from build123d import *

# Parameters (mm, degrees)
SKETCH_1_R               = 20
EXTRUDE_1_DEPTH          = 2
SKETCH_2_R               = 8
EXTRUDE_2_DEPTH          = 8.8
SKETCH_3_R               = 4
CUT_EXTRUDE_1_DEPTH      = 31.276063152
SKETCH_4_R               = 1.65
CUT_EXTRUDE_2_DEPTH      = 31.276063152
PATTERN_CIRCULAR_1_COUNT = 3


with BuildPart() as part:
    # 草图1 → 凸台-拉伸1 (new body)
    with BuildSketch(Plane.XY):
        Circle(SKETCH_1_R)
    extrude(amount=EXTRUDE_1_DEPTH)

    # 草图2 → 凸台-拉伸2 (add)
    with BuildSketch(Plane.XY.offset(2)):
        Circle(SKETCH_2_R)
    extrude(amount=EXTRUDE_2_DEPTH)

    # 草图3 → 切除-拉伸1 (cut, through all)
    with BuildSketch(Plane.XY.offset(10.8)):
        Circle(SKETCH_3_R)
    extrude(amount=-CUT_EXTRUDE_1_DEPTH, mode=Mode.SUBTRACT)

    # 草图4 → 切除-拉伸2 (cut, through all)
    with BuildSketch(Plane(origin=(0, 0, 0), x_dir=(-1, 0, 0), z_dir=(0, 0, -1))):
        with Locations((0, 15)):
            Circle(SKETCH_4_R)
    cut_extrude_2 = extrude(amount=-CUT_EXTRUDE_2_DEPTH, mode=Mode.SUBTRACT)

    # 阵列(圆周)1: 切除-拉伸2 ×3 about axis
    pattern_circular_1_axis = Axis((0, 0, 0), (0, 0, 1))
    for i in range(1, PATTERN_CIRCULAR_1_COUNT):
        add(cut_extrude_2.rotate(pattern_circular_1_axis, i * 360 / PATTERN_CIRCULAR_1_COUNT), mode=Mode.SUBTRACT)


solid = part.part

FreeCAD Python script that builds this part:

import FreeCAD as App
import Part
import Sketcher

doc = App.newDocument("Part")
body = doc.addObject("PartDesign::Body", "Body")

sketch1 = doc.addObject("Sketcher::SketchObject", "Sketch")
body.addObject(sketch1)
sketch1.AttachmentSupport = (doc.XY_Plane, [""])
sketch1.MapMode = "FlatFace"
sketch1.addGeometry(Part.Circle(App.Vector(0, 0, 0), App.Vector(0, 0, 1), 20), False)
sketch1.addConstraint([
    Sketcher.Constraint("Coincident", 0, 3, -1, 1),
    Sketcher.Constraint("Diameter", 0, 40.0),
])
pad1 = doc.addObject("PartDesign::Pad", "Pad")
body.addObject(pad1)
pad1.Profile = sketch1
pad1.Length = 2

sketch2 = doc.addObject("Sketcher::SketchObject", "Sketch001")
body.addObject(sketch2)
sketch2.AttachmentSupport = (doc.XY_Plane, [""])
sketch2.MapMode = "FlatFace"
sketch2.AttachmentOffset = App.Placement(App.Vector(0, 0, 2), App.Rotation())
sketch2.addGeometry(Part.Circle(App.Vector(0, 0, 0), App.Vector(0, 0, 1), 8), False)
sketch2.addConstraint([
    Sketcher.Constraint("Coincident", 0, 3, -1, 1),
    Sketcher.Constraint("Diameter", 0, 16.0),
])
pad2 = doc.addObject("PartDesign::Pad", "Pad001")
body.addObject(pad2)
pad2.Profile = sketch2
pad2.Length = 8.8

sketch3 = doc.addObject("Sketcher::SketchObject", "Sketch002")
body.addObject(sketch3)
sketch3.AttachmentSupport = (doc.XY_Plane, [""])
sketch3.MapMode = "FlatFace"
sketch3.AttachmentOffset = App.Placement(App.Vector(0, 0, 10.8), App.Rotation())
sketch3.addGeometry(Part.Circle(App.Vector(0, 0, 0), App.Vector(0, 0, 1), 4), False)
sketch3.addConstraint([
    Sketcher.Constraint("Coincident", 0, 3, -1, 1),
    Sketcher.Constraint("Diameter", 0, 8.0),
])
pocket1 = doc.addObject("PartDesign::Pocket", "Pocket")
body.addObject(pocket1)
pocket1.Profile = sketch3
pocket1.Type = "ThroughAll"

sketch4 = doc.addObject("Sketcher::SketchObject", "Sketch003")
body.addObject(sketch4)
sketch4.AttachmentSupport = (doc.XY_Plane, [""])
sketch4.MapMode = "FlatFace"
sketch4.addGeometry(Part.Circle(App.Vector(0, 15, 0), App.Vector(0, 0, 1), 1.6), False)
sketch4.addConstraint([
    Sketcher.Constraint("PointOnObject", 0, 3, -2),
    Sketcher.Constraint("Diameter", 0, 3.3),
    Sketcher.Constraint("DistanceY", -1, 1, 0, 3, 15.0),
])
pocket2 = doc.addObject("PartDesign::Pocket", "Pocket001")
body.addObject(pocket2)
pocket2.Profile = sketch4
pocket2.Type = "ThroughAll"
pocket2.Reversed = True
doc.recompute()

polarpattern = doc.addObject("PartDesign::PolarPattern", "PolarPattern")
body.addObject(polarpattern)
polarpattern.Originals = [pocket2]
polarpattern.Axis = (doc.Z_Axis, [""])
polarpattern.Angle = 360
polarpattern.Occurrences = 3
body.Tip = polarpattern

doc.recompute()
